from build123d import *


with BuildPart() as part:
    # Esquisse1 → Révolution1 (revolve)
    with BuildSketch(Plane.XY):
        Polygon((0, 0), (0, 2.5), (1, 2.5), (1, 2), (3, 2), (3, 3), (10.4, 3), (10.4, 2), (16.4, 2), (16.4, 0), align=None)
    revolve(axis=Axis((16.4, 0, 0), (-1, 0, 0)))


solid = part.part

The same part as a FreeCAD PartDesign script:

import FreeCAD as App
import Part
import Sketcher
from FreeCAD import Vector
Q = App.Units.Quantity


def add_polygon(sketch, points):
    """Adds a closed chain of lines whose ends are joined by coincident constraints."""
    first, n = sketch.GeometryCount, len(points)
    for a, b in zip(points, points[1:] + points[:1]):
        sketch.addGeometry(Part.LineSegment(App.Vector(*a, 0), App.Vector(*b, 0)), False)
    for i in range(n):
        sketch.addConstraint(Sketcher.Constraint("Coincident", first + i, 2, first + (i + 1) % n, 1))

doc = App.newDocument("Part")
body = doc.addObject("PartDesign::Body", "Body")

# Sketch on XY plane
sketch1 = body.newObject("Sketcher::SketchObject", "Sketch")
sketch1.AttachmentSupport = (doc.getObject("XY_Plane"), [""])
sketch1.MapMode = "FlatFace"
add_polygon(sketch1, [(0, 2.5), (0, 0), (16.4, 0), (16.4, 2), (10.4, 2), (10.4, 3), (3, 3), (3, 2), (1, 2), (1, 2.5)])  # lines 0-9
sketch1.addConstraint(Sketcher.Constraint("Vertical", 0))
sketch1.addConstraint(Sketcher.Constraint("Horizontal", 1))
sketch1.addConstraint(Sketcher.Constraint("Vertical", 2))
sketch1.addConstraint(Sketcher.Constraint("Horizontal", 3))
sketch1.addConstraint(Sketcher.Constraint("Vertical", 4))
sketch1.addConstraint(Sketcher.Constraint("Horizontal", 5))
sketch1.addConstraint(Sketcher.Constraint("Vertical", 6))
sketch1.addConstraint(Sketcher.Constraint("Horizontal", 7))
sketch1.addConstraint(Sketcher.Constraint("Vertical", 8))
sketch1.addConstraint(Sketcher.Constraint("Horizontal", 9))
sketch1.addConstraint(Sketcher.Constraint("Coincident", 0, 2, -1, 1))
sketch1.addConstraint(Sketcher.Constraint("Horizontal", 3, 2, 6, 2))
sketch1.addConstraint(Sketcher.Constraint("Equal", 7, 2))
sketch1.addConstraint(Sketcher.Constraint("Equal", 9, 4))
sketch1.addConstraint(Sketcher.Constraint("DistanceX", 3, 2, 3, 1, Q("6 mm")))
sketch1.addConstraint(Sketcher.Constraint("DistanceX", 7, 2, 7, 1, Q("2 mm")))
sketch1.addConstraint(Sketcher.Constraint("DistanceX", 9, 2, 9, 1, Q("1 mm")))
sketch1.addConstraint(Sketcher.Constraint("DistanceX", 1, 1, 1, 2, Q("16.4 mm")))
sketch1.addConstraint(Sketcher.Constraint("DistanceY", 0, 2, 0, 1, Q("2.5 mm")))
revolution = body.newObject("PartDesign::Revolution", "Revolution")
revolution.Profile = sketch1
revolution.ReferenceAxis = (sketch1, ["H_Axis"])
revolution.Angle = 360

doc.recompute()
